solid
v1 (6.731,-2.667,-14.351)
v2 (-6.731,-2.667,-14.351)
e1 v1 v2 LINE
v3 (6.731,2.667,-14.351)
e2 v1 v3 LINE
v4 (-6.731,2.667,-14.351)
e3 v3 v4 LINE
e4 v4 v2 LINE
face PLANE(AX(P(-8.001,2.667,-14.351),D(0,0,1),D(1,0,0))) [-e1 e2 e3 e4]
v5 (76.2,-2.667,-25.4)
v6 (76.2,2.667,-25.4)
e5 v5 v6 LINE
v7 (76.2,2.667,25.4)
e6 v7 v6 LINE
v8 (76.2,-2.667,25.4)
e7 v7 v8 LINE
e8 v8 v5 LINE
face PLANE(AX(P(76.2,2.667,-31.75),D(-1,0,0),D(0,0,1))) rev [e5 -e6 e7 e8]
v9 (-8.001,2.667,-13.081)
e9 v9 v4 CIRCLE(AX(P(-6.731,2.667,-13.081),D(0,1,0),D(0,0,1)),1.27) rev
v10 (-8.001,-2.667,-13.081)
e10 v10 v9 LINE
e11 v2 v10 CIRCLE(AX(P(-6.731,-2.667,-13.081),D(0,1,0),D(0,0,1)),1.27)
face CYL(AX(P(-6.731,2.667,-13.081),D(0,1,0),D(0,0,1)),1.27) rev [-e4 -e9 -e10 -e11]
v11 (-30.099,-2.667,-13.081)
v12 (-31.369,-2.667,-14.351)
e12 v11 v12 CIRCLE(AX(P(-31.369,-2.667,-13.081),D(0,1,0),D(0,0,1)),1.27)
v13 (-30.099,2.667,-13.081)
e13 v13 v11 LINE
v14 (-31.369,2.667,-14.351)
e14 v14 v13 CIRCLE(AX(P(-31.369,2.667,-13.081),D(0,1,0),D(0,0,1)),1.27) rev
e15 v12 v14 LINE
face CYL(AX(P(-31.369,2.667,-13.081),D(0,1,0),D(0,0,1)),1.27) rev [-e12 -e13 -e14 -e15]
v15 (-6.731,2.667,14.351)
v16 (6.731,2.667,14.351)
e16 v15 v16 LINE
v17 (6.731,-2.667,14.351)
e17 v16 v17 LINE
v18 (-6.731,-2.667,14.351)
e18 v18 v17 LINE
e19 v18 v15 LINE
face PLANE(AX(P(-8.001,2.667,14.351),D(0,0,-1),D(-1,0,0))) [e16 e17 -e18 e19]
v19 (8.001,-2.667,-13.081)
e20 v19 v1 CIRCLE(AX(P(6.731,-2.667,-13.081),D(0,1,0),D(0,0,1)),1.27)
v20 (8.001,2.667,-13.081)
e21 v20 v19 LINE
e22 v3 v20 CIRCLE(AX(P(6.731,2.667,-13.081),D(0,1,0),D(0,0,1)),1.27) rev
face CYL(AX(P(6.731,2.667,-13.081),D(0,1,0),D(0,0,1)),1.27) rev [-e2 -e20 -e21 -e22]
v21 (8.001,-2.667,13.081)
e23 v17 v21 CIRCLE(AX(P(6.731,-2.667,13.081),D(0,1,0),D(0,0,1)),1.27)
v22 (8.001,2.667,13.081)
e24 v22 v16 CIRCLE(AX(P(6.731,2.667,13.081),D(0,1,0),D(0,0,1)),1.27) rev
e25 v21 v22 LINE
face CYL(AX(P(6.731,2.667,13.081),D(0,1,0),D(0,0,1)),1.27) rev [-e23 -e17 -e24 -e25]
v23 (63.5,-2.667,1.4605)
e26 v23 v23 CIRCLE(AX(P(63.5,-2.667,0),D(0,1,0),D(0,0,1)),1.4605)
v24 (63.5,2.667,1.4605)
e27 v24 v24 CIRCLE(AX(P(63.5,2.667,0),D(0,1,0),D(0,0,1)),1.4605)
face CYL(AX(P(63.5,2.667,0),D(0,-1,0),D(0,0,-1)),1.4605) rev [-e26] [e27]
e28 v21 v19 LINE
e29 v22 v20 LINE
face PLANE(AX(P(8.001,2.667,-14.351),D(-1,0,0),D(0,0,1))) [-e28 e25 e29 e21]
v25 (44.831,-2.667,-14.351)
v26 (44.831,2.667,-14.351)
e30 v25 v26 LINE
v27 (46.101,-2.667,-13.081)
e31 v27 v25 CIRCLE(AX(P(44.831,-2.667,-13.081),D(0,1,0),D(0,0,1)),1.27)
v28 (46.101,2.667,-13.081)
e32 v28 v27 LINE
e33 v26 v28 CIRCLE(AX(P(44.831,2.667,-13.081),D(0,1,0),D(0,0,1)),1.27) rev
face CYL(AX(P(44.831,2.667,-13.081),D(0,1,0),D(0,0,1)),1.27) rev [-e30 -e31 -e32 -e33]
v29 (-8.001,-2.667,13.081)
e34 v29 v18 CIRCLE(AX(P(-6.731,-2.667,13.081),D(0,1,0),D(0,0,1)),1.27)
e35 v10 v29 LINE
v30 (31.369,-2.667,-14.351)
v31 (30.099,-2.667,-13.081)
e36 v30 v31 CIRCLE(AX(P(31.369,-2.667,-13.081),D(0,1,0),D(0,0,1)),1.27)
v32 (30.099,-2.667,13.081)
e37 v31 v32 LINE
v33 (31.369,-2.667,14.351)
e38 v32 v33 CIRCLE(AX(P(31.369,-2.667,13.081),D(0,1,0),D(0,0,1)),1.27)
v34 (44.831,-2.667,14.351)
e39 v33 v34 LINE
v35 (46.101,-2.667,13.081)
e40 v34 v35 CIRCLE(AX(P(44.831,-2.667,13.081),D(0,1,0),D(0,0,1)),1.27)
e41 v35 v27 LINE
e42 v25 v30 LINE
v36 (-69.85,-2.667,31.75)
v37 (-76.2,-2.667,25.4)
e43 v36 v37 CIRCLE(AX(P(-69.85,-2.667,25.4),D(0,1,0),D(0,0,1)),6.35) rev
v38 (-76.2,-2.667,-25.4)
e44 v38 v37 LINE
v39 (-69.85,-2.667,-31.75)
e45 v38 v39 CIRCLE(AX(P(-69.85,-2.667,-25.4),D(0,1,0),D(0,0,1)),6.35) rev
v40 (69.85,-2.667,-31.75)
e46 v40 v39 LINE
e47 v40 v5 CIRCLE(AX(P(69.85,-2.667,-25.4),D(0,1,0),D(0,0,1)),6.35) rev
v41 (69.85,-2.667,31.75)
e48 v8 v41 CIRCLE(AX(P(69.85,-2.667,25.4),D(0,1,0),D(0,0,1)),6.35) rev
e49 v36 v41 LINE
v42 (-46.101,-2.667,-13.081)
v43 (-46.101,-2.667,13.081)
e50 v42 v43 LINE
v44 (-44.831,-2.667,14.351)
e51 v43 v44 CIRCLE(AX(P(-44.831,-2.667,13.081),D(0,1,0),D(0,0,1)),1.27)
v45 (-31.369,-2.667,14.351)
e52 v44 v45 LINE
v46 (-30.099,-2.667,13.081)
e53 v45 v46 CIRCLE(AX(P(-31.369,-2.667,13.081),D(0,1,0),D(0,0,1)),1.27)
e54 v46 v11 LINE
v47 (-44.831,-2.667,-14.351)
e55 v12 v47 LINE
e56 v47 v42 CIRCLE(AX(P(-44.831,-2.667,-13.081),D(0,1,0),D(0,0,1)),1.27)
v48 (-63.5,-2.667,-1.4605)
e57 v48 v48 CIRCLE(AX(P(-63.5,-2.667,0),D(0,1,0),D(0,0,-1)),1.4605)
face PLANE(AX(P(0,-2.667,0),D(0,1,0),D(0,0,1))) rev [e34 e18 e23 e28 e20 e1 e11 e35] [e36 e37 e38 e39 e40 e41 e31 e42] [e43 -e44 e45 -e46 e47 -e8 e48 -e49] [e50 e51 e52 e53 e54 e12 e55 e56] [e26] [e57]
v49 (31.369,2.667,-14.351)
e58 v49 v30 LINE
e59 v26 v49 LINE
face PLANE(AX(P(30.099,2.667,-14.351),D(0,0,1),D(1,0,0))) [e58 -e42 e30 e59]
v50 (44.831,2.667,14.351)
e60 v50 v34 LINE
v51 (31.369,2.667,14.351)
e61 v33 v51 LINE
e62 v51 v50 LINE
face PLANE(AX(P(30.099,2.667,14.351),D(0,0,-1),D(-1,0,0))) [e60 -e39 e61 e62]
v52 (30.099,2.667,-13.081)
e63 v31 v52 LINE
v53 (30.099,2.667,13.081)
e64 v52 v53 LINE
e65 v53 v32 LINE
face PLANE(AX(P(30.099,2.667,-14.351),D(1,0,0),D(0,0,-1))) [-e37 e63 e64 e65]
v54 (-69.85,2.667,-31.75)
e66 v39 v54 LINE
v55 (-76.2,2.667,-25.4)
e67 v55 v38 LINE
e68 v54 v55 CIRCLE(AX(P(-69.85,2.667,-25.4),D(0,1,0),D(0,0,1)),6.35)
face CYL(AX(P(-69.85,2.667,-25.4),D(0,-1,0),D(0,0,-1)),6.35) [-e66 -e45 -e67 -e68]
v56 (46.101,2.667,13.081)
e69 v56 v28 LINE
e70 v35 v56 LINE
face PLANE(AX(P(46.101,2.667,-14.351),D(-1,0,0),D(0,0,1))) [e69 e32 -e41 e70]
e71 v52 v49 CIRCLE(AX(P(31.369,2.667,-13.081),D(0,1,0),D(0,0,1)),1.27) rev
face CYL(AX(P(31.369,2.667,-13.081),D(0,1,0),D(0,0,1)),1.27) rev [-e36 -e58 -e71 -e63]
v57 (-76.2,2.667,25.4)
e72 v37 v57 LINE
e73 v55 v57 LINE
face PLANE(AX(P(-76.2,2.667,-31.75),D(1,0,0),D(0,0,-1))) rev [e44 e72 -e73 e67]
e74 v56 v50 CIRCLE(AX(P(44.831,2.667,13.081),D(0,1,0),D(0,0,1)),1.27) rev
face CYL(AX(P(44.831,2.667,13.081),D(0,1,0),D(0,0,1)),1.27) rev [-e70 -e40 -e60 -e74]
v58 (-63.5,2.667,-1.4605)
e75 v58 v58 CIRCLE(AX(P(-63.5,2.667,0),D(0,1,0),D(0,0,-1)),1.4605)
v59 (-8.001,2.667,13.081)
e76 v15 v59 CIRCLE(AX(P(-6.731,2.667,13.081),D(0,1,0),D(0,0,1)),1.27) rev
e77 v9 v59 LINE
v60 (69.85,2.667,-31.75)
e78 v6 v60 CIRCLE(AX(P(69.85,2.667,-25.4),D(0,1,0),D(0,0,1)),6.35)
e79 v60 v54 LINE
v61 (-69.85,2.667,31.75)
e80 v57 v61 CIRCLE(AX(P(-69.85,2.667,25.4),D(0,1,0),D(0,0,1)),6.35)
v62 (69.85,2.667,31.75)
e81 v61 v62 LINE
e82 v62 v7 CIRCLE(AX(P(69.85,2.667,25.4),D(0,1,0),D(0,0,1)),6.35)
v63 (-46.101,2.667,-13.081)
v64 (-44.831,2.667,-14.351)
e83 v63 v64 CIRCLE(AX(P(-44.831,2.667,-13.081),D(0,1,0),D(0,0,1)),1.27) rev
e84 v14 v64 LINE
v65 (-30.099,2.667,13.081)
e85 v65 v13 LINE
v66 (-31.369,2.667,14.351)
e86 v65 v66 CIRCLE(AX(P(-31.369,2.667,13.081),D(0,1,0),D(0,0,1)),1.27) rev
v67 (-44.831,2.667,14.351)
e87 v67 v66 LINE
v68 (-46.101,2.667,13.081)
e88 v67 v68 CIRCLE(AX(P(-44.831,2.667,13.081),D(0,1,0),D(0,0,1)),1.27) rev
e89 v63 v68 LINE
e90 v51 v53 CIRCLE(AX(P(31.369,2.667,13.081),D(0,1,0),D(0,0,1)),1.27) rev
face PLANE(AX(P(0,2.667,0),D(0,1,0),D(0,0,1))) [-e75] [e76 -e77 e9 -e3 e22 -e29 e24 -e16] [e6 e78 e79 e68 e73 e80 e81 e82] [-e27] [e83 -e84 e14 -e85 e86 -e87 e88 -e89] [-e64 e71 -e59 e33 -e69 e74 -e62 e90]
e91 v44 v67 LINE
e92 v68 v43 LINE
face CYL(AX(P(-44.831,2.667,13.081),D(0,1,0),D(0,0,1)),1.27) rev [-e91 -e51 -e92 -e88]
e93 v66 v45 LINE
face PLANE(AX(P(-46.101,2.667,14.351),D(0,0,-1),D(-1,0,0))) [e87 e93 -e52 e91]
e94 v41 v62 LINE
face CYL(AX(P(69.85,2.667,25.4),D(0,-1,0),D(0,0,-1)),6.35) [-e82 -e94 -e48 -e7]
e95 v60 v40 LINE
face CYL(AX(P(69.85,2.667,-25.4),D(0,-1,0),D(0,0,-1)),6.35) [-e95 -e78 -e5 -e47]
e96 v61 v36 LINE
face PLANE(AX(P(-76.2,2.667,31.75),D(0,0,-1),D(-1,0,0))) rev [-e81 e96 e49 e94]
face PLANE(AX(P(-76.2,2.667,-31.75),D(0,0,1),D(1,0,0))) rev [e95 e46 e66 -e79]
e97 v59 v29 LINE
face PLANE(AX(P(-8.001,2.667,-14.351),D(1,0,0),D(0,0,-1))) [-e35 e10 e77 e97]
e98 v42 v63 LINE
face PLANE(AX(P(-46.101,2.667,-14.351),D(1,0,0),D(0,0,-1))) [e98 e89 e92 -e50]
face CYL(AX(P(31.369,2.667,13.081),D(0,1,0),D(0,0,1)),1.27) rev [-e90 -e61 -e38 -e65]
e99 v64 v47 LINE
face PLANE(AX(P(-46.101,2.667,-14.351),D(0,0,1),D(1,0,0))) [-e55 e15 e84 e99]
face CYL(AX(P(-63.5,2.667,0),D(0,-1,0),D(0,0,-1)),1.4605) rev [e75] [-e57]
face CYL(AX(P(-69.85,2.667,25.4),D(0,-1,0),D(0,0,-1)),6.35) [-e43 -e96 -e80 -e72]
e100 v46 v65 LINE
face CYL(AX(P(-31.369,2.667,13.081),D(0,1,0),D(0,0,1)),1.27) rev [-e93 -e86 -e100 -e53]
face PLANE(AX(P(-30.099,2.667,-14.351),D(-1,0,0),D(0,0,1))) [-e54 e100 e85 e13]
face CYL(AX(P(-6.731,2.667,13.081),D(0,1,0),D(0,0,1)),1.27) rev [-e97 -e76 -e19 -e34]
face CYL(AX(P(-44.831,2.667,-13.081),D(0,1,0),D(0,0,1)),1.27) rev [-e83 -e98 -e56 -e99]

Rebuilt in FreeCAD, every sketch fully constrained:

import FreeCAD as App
import Part
import Sketcher
Q = App.Units.Quantity


def edges_at(feature, points):
    """Names of the edges that pass closest to the given points."""
    edges = feature.Shape.Edges
    near = lambda p: min(range(len(edges)), key=lambda i: edges[i].distToShape(Part.Vertex(*p))[0])
    return sorted({f"Edge{near(p) + 1}" for p in points})


def add_polygon(sketch, points):
    """Adds a closed chain of lines whose ends are joined by coincident constraints."""
    first, n = sketch.GeometryCount, len(points)
    for a, b in zip(points, points[1:] + points[:1]):
        sketch.addGeometry(Part.LineSegment(App.Vector(*a, 0), App.Vector(*b, 0)), False)
    for i in range(n):
        sketch.addConstraint(Sketcher.Constraint("Coincident", first + i, 2, first + (i + 1) % n, 1))

doc = App.newDocument("Part")
body = doc.addObject("PartDesign::Body", "Body")

sketch1 = body.newObject("Sketcher::SketchObject", "Sketch")
sketch1.AttachmentSupport = (doc.getObject("XZ_Plane"), [""])
sketch1.MapMode = "FlatFace"
add_polygon(sketch1, [(-76.2, -31.8), (-76.2, 31.8), (76.2, 31.8), (76.2, -31.8)])
sketch1.addGeometry(Part.Circle(App.Vector(-63.5, 0, 0), App.Vector(0, 0, 1), 1.5), False)
add_polygon(sketch1, [(-30.1, 14.4), (-46.1, 14.4), (-46.1, -14.4), (-30.1, -14.4)])
add_polygon(sketch1, [(8, 14.4), (-8, 14.4), (-8, -14.4), (8, -14.4)])
add_polygon(sketch1, [(46.1, 14.4), (30.1, 14.4), (30.1, -14.4), (46.1, -14.4)])
sketch1.addGeometry(Part.Circle(App.Vector(63.5, 0, 0), App.Vector(0, 0, 1), 1.5), False)
sketch1.addConstraint(Sketcher.Constraint("Vertical", 0))
sketch1.addConstraint(Sketcher.Constraint("Horizontal", 1))
sketch1.addConstraint(Sketcher.Constraint("Vertical", 2))
sketch1.addConstraint(Sketcher.Constraint("Horizontal", 3))
sketch1.addConstraint(Sketcher.Constraint("Horizontal", 5))
sketch1.addConstraint(Sketcher.Constraint("Vertical", 6))
sketch1.addConstraint(Sketcher.Constraint("Horizontal", 7))
sketch1.addConstraint(Sketcher.Constraint("Vertical", 8))
sketch1.addConstraint(Sketcher.Constraint("Horizontal", 9))
sketch1.addConstraint(Sketcher.Constraint("Vertical", 10))
sketch1.addConstraint(Sketcher.Constraint("Horizontal", 11))
sketch1.addConstraint(Sketcher.Constraint("Vertical", 12))
sketch1.addConstraint(Sketcher.Constraint("Horizontal", 13))
sketch1.addConstraint(Sketcher.Constraint("Vertical", 14))
sketch1.addConstraint(Sketcher.Constraint("Horizontal", 15))
sketch1.addConstraint(Sketcher.Constraint("Vertical", 16))
sketch1.addConstraint(Sketcher.Constraint("Equal", 4, 17))
sketch1.addConstraint(Sketcher.Constraint("Symmetric", 4, 3, 17, 3, -1, 1))
sketch1.addConstraint(Sketcher.Constraint("Symmetric", 0, 2, 2, 2, -1, 1))
sketch1.addConstraint(Sketcher.Constraint("Symmetric", 9, 2, 11, 2, -1, 1))
sketch1.addConstraint(Sketcher.Constraint("Symmetric", 7, 2, 13, 2, -1, 1))
sketch1.addConstraint(Sketcher.Constraint("Symmetric", 5, 2, 15, 2, -1, 1))
sketch1.addConstraint(Sketcher.Constraint("PointOnObject", 4, 3, -1))
sketch1.addConstraint(Sketcher.Constraint("Horizontal", 8, 2, 9, 2))
sketch1.addConstraint(Sketcher.Constraint("Horizontal", 7, 2, 10, 2))
sketch1.addConstraint(Sketcher.Constraint("Equal", 7, 9))
sketch1.addConstraint(Sketcher.Constraint("DistanceX", 1, 1, 1, 2, Q("6 in")))
sketch1.addConstraint(Sketcher.Constraint("Diameter", 4, Q("0.115 in")))
sketch1.addConstraint(Sketcher.Constraint("DistanceY", 0, 1, 0, 2, Q("2.5 in")))
sketch1.addConstraint(Sketcher.Constraint("DistanceX", 4, 3, 17, 3, Q("5 in")))
sketch1.addConstraint(Sketcher.Constraint("DistanceX", 5, 2, 5, 1, Q("0.63 in")))
sketch1.addConstraint(Sketcher.Constraint("DistanceY", 6, 2, 6, 1, Q("1.13 in")))
sketch1.addConstraint(Sketcher.Constraint("DistanceX", 5, 2, 9, 2, Q("1.5 in")))
pad1 = body.newObject("PartDesign::Pad", "Pad")
pad1.Profile = sketch1
pad1.Length = Q("0.21 in")
pad1.Midplane = True
doc.recompute()

fillet = body.newObject("PartDesign::Fillet", "Fillet")
fillet.Base = (pad1, edges_at(pad1, [
    (-30.099, 0, 14.351),
    (-30.099, 0, -14.351),
    (-46.101, 0, -14.351),
    (-46.101, 0, 14.351),
    (8.001, 0, 14.351),
    (8.001, 0, -14.351),
    (-8.001, 0, -14.351),
    (-8.001, 0, 14.351),
    (46.101, 0, 14.351),
    (46.101, 0, -14.351),
    (30.099, 0, -14.351),
    (30.099, 0, 14.351),
]))
fillet.Radius = Q("0.05 in")
doc.recompute()

fillet2 = body.newObject("PartDesign::Fillet", "Fillet001")
fillet2.Base = (fillet, edges_at(fillet, [
    (76.2, 0, 31.75),
    (-76.2, 0, 31.75),
    (-76.2, 0, -31.75),
    (76.2, 0, -31.75),
]))
fillet2.Radius = Q("0.25 in")

doc.recompute()
